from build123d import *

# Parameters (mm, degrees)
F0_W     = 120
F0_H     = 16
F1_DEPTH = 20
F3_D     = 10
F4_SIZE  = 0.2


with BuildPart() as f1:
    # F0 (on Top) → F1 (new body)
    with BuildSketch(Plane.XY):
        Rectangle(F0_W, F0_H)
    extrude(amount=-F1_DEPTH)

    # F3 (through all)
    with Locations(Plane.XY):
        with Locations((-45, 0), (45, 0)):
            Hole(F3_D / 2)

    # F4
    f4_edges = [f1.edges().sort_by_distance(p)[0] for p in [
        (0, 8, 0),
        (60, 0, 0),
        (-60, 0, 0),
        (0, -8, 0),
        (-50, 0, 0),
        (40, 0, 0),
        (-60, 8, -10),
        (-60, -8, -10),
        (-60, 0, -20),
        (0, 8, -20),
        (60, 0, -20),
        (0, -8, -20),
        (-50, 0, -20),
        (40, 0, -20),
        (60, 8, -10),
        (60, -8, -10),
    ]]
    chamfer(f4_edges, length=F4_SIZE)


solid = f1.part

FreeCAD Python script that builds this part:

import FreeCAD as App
import Part
import Sketcher


def add_polygon(sketch, points):
    """Adds a closed chain of lines whose ends are joined by coincident constraints."""
    first, n = sketch.GeometryCount, len(points)
    for a, b in zip(points, points[1:] + points[:1]):
        sketch.addGeometry(Part.LineSegment(App.Vector(*a, 0), App.Vector(*b, 0)), False)
    for i in range(n):
        sketch.addConstraint(Sketcher.Constraint("Coincident", first + i, 2, first + (i + 1) % n, 1))

doc = App.newDocument("Part")
body = doc.addObject("PartDesign::Body", "Body")

sketch1 = body.newObject("Sketcher::SketchObject", "Sketch")
sketch1.AttachmentSupport = (doc.getObject("XY_Plane"), [""])
sketch1.MapMode = "FlatFace"
add_polygon(sketch1, [(-60, 8), (-60, -8), (60, -8), (60, 8)])
sketch1.addConstraint(Sketcher.Constraint("Vertical", 0))
sketch1.addConstraint(Sketcher.Constraint("Horizontal", 1))
sketch1.addConstraint(Sketcher.Constraint("Vertical", 2))
sketch1.addConstraint(Sketcher.Constraint("Horizontal", 3))
sketch1.addConstraint(Sketcher.Constraint("Symmetric", 0, 2, 2, 2, -1, 1))
sketch1.addConstraint(Sketcher.Constraint("DistanceX", 1, 1, 1, 2, 120.0))
sketch1.addConstraint(Sketcher.Constraint("DistanceY", 0, 2, 0, 1, 16.0))
pad1 = body.newObject("PartDesign::Pad", "Pad")
pad1.Profile = sketch1
pad1.Length = 20
pad1.Reversed = True

sketch2 = body.newObject("Sketcher::SketchObject", "Sketch001")
sketch2.AttachmentSupport = (doc.getObject("XY_Plane"), [""])
sketch2.MapMode = "FlatFace"
sketch2.addGeometry(Part.Circle(App.Vector(-45, 0, 0), App.Vector(0, 0, 1), 5), False)
sketch2.addGeometry(Part.Circle(App.Vector(45, 0, 0), App.Vector(0, 0, 1), 5), False)
sketch2.addConstraint(Sketcher.Constraint("Equal", 0, 1))
sketch2.addConstraint(Sketcher.Constraint("Symmetric", 0, 3, 1, 3, -1, 1))
sketch2.addConstraint(Sketcher.Constraint("PointOnObject", 0, 3, -1))
sketch2.addConstraint(Sketcher.Constraint("Diameter", 0, 10.0))
sketch2.addConstraint(Sketcher.Constraint("DistanceX", 0, 3, -1, 1, 45.0))
doc.recompute()
hole = body.newObject("PartDesign::Hole", "Hole")
hole.Profile = sketch2
hole.ThreadType = "None"
hole.Diameter = 10
hole.DepthType = "ThroughAll"
doc.recompute()

chamfer = body.newObject("PartDesign::Chamfer", "Chamfer")
chamfer.Base = (hole, ["Edge1"])
chamfer.UseAllEdges = True
chamfer.Size = 0.2

doc.recompute()
